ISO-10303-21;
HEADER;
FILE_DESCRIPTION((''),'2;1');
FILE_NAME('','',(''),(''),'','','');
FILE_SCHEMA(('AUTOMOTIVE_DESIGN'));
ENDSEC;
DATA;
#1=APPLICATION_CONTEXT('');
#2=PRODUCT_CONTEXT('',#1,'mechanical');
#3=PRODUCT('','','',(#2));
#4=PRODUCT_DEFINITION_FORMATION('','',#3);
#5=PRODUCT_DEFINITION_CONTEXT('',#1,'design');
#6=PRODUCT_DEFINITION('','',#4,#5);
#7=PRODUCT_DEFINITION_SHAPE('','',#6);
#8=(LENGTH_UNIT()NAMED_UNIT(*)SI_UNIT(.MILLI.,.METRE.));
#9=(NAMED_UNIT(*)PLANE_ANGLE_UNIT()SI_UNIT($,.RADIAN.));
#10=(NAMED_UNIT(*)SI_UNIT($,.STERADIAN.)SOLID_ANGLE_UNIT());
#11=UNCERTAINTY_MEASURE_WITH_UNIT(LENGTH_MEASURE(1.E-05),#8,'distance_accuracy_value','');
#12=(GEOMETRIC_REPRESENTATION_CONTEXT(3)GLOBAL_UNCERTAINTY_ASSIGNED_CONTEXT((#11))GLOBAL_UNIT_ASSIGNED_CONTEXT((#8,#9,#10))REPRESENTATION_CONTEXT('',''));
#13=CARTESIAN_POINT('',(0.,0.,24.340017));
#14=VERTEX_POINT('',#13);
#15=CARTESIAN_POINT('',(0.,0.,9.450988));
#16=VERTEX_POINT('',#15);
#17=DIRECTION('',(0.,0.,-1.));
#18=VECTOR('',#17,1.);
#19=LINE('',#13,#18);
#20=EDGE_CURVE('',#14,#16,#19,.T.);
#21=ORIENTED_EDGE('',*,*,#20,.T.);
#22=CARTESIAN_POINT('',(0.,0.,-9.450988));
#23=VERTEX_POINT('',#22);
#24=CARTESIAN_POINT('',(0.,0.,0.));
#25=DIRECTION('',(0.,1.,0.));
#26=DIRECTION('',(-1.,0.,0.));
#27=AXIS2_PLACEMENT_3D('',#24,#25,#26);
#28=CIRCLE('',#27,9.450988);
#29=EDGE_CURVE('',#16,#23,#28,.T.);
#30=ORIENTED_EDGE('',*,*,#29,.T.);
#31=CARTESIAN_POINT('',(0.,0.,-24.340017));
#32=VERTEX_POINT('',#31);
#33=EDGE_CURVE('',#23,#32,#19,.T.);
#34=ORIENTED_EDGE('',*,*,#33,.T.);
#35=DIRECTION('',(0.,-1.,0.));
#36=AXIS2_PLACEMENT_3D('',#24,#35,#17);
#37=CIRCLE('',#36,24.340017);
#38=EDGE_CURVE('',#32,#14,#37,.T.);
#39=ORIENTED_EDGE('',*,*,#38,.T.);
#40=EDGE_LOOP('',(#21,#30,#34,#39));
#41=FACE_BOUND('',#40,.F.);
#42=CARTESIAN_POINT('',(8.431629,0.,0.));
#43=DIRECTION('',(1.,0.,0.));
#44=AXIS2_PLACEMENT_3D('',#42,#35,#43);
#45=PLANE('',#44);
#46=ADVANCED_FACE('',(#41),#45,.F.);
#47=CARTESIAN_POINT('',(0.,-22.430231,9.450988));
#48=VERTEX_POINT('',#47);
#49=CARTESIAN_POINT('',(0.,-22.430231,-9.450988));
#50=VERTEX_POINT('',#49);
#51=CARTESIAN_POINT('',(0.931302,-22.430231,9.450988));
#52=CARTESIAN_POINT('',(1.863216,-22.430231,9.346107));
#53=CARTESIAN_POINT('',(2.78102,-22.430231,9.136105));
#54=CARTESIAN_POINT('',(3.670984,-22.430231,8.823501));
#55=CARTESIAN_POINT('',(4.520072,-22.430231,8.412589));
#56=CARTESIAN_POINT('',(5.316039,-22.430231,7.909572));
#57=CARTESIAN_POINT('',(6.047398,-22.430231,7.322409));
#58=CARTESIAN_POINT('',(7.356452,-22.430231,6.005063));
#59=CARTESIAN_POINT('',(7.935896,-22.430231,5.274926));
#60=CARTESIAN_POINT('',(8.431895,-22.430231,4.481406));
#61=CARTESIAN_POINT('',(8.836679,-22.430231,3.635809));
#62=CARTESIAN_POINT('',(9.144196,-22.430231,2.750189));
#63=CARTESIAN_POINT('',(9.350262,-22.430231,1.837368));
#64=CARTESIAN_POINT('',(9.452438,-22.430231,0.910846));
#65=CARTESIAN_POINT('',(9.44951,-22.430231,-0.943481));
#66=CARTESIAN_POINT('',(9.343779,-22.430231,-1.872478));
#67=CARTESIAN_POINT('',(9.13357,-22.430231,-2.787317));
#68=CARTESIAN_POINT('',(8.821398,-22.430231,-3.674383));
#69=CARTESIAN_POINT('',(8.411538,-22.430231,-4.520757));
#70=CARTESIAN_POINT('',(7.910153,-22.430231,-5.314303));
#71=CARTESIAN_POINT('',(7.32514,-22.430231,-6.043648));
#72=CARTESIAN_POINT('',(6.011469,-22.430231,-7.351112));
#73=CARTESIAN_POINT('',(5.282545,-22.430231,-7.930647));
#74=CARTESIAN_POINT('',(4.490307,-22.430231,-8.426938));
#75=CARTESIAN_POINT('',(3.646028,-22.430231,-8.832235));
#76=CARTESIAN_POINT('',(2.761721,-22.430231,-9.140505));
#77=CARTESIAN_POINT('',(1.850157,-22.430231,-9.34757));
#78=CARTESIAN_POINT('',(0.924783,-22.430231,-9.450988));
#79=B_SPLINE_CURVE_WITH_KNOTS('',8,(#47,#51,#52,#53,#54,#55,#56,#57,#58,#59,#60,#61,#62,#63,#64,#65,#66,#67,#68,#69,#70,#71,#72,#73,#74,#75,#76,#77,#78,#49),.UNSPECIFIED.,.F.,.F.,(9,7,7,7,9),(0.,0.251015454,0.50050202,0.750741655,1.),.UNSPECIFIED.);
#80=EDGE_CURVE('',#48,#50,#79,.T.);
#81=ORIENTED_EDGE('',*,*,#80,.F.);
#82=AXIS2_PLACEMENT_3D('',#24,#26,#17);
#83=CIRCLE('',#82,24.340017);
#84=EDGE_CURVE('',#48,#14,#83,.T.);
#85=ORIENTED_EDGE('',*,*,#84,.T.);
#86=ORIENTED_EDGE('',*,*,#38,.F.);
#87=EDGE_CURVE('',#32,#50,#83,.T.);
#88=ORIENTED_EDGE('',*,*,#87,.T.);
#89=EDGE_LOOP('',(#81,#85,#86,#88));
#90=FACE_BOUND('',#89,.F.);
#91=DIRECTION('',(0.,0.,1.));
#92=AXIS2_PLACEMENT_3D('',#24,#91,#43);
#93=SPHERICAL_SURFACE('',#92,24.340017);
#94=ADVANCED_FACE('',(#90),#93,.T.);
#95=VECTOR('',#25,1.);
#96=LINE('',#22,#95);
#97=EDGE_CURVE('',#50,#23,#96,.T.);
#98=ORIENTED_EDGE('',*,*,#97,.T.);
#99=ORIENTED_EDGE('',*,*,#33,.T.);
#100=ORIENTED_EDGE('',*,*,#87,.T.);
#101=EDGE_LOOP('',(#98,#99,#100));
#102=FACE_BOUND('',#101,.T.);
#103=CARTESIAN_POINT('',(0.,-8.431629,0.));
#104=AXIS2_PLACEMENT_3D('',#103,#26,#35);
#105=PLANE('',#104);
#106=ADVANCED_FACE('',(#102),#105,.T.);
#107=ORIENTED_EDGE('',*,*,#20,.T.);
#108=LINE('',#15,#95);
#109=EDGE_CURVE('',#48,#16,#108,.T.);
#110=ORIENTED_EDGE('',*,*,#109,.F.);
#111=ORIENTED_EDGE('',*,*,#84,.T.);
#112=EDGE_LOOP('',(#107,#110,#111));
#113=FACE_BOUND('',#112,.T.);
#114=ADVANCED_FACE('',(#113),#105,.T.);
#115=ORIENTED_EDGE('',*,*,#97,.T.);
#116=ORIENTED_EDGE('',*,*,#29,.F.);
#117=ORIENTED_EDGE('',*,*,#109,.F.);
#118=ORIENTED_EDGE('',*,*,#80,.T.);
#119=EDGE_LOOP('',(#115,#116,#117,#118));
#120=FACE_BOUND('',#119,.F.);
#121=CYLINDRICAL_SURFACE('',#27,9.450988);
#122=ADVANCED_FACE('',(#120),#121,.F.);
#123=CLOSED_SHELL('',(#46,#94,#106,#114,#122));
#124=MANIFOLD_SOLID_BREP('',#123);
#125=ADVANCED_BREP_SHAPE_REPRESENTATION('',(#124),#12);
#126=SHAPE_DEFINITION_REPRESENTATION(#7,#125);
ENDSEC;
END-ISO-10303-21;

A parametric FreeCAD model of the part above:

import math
import FreeCAD as App
import Part
import Sketcher

V = App.Vector
Q = App.Units.Quantity

doc = App.newDocument("Part")
body = doc.addObject("PartDesign::Body", "Body")

sketch1 = doc.addObject("Sketcher::SketchObject", "Sketch")
body.addObject(sketch1)
sketch1.AttachmentSupport = (doc.XZ_Plane, [""])
sketch1.MapMode = "FlatFace"
sketch1.addGeometry([
    Part.ArcOfCircle(Part.Circle(V(0, 0, 0), V(0, 0, 1), 24), math.radians(-90), math.radians(90)),
    Part.LineSegment(V(0, 24, 0), V(0, -24, 0)),
], False)
sketch1.addConstraint([
    Sketcher.Constraint("Coincident", 0, 1, 1, 2),
    Sketcher.Constraint("Coincident", 1, 1, 0, 2),
    Sketcher.Constraint("Vertical", 1),
    Sketcher.Constraint("Coincident", 0, 3, -1, 1),
    Sketcher.Constraint("PointOnObject", 0, 1, -2),
    Sketcher.Constraint("Radius", 0, Q("24.340017 mm")),
])
revolution = doc.addObject("PartDesign::Revolution", "Revolution")
body.addObject(revolution)
revolution.Profile = sketch1
revolution.ReferenceAxis = (sketch1, ["V_Axis"])
revolution.Angle = 90
revolution.Reversed = True

sketch2 = doc.addObject("Sketcher::SketchObject", "Sketch001")
body.addObject(sketch2)
sketch2.AttachmentSupport = (doc.XZ_Plane, [""])
sketch2.MapMode = "FlatFace"
sketch2.addGeometry(Part.Circle(V(0, 0, 0), V(0, 0, 1), 9), False)
sketch2.addConstraint([
    Sketcher.Constraint("Coincident", 0, 3, -1, 1),
    Sketcher.Constraint("Diameter", 0, Q("18.901976 mm")),
])
pocket1 = doc.addObject("PartDesign::Pocket", "Pocket")
body.addObject(pocket1)
pocket1.Profile = sketch2
pocket1.Type = "ThroughAll"
pocket1.Reversed = True

doc.recompute()
